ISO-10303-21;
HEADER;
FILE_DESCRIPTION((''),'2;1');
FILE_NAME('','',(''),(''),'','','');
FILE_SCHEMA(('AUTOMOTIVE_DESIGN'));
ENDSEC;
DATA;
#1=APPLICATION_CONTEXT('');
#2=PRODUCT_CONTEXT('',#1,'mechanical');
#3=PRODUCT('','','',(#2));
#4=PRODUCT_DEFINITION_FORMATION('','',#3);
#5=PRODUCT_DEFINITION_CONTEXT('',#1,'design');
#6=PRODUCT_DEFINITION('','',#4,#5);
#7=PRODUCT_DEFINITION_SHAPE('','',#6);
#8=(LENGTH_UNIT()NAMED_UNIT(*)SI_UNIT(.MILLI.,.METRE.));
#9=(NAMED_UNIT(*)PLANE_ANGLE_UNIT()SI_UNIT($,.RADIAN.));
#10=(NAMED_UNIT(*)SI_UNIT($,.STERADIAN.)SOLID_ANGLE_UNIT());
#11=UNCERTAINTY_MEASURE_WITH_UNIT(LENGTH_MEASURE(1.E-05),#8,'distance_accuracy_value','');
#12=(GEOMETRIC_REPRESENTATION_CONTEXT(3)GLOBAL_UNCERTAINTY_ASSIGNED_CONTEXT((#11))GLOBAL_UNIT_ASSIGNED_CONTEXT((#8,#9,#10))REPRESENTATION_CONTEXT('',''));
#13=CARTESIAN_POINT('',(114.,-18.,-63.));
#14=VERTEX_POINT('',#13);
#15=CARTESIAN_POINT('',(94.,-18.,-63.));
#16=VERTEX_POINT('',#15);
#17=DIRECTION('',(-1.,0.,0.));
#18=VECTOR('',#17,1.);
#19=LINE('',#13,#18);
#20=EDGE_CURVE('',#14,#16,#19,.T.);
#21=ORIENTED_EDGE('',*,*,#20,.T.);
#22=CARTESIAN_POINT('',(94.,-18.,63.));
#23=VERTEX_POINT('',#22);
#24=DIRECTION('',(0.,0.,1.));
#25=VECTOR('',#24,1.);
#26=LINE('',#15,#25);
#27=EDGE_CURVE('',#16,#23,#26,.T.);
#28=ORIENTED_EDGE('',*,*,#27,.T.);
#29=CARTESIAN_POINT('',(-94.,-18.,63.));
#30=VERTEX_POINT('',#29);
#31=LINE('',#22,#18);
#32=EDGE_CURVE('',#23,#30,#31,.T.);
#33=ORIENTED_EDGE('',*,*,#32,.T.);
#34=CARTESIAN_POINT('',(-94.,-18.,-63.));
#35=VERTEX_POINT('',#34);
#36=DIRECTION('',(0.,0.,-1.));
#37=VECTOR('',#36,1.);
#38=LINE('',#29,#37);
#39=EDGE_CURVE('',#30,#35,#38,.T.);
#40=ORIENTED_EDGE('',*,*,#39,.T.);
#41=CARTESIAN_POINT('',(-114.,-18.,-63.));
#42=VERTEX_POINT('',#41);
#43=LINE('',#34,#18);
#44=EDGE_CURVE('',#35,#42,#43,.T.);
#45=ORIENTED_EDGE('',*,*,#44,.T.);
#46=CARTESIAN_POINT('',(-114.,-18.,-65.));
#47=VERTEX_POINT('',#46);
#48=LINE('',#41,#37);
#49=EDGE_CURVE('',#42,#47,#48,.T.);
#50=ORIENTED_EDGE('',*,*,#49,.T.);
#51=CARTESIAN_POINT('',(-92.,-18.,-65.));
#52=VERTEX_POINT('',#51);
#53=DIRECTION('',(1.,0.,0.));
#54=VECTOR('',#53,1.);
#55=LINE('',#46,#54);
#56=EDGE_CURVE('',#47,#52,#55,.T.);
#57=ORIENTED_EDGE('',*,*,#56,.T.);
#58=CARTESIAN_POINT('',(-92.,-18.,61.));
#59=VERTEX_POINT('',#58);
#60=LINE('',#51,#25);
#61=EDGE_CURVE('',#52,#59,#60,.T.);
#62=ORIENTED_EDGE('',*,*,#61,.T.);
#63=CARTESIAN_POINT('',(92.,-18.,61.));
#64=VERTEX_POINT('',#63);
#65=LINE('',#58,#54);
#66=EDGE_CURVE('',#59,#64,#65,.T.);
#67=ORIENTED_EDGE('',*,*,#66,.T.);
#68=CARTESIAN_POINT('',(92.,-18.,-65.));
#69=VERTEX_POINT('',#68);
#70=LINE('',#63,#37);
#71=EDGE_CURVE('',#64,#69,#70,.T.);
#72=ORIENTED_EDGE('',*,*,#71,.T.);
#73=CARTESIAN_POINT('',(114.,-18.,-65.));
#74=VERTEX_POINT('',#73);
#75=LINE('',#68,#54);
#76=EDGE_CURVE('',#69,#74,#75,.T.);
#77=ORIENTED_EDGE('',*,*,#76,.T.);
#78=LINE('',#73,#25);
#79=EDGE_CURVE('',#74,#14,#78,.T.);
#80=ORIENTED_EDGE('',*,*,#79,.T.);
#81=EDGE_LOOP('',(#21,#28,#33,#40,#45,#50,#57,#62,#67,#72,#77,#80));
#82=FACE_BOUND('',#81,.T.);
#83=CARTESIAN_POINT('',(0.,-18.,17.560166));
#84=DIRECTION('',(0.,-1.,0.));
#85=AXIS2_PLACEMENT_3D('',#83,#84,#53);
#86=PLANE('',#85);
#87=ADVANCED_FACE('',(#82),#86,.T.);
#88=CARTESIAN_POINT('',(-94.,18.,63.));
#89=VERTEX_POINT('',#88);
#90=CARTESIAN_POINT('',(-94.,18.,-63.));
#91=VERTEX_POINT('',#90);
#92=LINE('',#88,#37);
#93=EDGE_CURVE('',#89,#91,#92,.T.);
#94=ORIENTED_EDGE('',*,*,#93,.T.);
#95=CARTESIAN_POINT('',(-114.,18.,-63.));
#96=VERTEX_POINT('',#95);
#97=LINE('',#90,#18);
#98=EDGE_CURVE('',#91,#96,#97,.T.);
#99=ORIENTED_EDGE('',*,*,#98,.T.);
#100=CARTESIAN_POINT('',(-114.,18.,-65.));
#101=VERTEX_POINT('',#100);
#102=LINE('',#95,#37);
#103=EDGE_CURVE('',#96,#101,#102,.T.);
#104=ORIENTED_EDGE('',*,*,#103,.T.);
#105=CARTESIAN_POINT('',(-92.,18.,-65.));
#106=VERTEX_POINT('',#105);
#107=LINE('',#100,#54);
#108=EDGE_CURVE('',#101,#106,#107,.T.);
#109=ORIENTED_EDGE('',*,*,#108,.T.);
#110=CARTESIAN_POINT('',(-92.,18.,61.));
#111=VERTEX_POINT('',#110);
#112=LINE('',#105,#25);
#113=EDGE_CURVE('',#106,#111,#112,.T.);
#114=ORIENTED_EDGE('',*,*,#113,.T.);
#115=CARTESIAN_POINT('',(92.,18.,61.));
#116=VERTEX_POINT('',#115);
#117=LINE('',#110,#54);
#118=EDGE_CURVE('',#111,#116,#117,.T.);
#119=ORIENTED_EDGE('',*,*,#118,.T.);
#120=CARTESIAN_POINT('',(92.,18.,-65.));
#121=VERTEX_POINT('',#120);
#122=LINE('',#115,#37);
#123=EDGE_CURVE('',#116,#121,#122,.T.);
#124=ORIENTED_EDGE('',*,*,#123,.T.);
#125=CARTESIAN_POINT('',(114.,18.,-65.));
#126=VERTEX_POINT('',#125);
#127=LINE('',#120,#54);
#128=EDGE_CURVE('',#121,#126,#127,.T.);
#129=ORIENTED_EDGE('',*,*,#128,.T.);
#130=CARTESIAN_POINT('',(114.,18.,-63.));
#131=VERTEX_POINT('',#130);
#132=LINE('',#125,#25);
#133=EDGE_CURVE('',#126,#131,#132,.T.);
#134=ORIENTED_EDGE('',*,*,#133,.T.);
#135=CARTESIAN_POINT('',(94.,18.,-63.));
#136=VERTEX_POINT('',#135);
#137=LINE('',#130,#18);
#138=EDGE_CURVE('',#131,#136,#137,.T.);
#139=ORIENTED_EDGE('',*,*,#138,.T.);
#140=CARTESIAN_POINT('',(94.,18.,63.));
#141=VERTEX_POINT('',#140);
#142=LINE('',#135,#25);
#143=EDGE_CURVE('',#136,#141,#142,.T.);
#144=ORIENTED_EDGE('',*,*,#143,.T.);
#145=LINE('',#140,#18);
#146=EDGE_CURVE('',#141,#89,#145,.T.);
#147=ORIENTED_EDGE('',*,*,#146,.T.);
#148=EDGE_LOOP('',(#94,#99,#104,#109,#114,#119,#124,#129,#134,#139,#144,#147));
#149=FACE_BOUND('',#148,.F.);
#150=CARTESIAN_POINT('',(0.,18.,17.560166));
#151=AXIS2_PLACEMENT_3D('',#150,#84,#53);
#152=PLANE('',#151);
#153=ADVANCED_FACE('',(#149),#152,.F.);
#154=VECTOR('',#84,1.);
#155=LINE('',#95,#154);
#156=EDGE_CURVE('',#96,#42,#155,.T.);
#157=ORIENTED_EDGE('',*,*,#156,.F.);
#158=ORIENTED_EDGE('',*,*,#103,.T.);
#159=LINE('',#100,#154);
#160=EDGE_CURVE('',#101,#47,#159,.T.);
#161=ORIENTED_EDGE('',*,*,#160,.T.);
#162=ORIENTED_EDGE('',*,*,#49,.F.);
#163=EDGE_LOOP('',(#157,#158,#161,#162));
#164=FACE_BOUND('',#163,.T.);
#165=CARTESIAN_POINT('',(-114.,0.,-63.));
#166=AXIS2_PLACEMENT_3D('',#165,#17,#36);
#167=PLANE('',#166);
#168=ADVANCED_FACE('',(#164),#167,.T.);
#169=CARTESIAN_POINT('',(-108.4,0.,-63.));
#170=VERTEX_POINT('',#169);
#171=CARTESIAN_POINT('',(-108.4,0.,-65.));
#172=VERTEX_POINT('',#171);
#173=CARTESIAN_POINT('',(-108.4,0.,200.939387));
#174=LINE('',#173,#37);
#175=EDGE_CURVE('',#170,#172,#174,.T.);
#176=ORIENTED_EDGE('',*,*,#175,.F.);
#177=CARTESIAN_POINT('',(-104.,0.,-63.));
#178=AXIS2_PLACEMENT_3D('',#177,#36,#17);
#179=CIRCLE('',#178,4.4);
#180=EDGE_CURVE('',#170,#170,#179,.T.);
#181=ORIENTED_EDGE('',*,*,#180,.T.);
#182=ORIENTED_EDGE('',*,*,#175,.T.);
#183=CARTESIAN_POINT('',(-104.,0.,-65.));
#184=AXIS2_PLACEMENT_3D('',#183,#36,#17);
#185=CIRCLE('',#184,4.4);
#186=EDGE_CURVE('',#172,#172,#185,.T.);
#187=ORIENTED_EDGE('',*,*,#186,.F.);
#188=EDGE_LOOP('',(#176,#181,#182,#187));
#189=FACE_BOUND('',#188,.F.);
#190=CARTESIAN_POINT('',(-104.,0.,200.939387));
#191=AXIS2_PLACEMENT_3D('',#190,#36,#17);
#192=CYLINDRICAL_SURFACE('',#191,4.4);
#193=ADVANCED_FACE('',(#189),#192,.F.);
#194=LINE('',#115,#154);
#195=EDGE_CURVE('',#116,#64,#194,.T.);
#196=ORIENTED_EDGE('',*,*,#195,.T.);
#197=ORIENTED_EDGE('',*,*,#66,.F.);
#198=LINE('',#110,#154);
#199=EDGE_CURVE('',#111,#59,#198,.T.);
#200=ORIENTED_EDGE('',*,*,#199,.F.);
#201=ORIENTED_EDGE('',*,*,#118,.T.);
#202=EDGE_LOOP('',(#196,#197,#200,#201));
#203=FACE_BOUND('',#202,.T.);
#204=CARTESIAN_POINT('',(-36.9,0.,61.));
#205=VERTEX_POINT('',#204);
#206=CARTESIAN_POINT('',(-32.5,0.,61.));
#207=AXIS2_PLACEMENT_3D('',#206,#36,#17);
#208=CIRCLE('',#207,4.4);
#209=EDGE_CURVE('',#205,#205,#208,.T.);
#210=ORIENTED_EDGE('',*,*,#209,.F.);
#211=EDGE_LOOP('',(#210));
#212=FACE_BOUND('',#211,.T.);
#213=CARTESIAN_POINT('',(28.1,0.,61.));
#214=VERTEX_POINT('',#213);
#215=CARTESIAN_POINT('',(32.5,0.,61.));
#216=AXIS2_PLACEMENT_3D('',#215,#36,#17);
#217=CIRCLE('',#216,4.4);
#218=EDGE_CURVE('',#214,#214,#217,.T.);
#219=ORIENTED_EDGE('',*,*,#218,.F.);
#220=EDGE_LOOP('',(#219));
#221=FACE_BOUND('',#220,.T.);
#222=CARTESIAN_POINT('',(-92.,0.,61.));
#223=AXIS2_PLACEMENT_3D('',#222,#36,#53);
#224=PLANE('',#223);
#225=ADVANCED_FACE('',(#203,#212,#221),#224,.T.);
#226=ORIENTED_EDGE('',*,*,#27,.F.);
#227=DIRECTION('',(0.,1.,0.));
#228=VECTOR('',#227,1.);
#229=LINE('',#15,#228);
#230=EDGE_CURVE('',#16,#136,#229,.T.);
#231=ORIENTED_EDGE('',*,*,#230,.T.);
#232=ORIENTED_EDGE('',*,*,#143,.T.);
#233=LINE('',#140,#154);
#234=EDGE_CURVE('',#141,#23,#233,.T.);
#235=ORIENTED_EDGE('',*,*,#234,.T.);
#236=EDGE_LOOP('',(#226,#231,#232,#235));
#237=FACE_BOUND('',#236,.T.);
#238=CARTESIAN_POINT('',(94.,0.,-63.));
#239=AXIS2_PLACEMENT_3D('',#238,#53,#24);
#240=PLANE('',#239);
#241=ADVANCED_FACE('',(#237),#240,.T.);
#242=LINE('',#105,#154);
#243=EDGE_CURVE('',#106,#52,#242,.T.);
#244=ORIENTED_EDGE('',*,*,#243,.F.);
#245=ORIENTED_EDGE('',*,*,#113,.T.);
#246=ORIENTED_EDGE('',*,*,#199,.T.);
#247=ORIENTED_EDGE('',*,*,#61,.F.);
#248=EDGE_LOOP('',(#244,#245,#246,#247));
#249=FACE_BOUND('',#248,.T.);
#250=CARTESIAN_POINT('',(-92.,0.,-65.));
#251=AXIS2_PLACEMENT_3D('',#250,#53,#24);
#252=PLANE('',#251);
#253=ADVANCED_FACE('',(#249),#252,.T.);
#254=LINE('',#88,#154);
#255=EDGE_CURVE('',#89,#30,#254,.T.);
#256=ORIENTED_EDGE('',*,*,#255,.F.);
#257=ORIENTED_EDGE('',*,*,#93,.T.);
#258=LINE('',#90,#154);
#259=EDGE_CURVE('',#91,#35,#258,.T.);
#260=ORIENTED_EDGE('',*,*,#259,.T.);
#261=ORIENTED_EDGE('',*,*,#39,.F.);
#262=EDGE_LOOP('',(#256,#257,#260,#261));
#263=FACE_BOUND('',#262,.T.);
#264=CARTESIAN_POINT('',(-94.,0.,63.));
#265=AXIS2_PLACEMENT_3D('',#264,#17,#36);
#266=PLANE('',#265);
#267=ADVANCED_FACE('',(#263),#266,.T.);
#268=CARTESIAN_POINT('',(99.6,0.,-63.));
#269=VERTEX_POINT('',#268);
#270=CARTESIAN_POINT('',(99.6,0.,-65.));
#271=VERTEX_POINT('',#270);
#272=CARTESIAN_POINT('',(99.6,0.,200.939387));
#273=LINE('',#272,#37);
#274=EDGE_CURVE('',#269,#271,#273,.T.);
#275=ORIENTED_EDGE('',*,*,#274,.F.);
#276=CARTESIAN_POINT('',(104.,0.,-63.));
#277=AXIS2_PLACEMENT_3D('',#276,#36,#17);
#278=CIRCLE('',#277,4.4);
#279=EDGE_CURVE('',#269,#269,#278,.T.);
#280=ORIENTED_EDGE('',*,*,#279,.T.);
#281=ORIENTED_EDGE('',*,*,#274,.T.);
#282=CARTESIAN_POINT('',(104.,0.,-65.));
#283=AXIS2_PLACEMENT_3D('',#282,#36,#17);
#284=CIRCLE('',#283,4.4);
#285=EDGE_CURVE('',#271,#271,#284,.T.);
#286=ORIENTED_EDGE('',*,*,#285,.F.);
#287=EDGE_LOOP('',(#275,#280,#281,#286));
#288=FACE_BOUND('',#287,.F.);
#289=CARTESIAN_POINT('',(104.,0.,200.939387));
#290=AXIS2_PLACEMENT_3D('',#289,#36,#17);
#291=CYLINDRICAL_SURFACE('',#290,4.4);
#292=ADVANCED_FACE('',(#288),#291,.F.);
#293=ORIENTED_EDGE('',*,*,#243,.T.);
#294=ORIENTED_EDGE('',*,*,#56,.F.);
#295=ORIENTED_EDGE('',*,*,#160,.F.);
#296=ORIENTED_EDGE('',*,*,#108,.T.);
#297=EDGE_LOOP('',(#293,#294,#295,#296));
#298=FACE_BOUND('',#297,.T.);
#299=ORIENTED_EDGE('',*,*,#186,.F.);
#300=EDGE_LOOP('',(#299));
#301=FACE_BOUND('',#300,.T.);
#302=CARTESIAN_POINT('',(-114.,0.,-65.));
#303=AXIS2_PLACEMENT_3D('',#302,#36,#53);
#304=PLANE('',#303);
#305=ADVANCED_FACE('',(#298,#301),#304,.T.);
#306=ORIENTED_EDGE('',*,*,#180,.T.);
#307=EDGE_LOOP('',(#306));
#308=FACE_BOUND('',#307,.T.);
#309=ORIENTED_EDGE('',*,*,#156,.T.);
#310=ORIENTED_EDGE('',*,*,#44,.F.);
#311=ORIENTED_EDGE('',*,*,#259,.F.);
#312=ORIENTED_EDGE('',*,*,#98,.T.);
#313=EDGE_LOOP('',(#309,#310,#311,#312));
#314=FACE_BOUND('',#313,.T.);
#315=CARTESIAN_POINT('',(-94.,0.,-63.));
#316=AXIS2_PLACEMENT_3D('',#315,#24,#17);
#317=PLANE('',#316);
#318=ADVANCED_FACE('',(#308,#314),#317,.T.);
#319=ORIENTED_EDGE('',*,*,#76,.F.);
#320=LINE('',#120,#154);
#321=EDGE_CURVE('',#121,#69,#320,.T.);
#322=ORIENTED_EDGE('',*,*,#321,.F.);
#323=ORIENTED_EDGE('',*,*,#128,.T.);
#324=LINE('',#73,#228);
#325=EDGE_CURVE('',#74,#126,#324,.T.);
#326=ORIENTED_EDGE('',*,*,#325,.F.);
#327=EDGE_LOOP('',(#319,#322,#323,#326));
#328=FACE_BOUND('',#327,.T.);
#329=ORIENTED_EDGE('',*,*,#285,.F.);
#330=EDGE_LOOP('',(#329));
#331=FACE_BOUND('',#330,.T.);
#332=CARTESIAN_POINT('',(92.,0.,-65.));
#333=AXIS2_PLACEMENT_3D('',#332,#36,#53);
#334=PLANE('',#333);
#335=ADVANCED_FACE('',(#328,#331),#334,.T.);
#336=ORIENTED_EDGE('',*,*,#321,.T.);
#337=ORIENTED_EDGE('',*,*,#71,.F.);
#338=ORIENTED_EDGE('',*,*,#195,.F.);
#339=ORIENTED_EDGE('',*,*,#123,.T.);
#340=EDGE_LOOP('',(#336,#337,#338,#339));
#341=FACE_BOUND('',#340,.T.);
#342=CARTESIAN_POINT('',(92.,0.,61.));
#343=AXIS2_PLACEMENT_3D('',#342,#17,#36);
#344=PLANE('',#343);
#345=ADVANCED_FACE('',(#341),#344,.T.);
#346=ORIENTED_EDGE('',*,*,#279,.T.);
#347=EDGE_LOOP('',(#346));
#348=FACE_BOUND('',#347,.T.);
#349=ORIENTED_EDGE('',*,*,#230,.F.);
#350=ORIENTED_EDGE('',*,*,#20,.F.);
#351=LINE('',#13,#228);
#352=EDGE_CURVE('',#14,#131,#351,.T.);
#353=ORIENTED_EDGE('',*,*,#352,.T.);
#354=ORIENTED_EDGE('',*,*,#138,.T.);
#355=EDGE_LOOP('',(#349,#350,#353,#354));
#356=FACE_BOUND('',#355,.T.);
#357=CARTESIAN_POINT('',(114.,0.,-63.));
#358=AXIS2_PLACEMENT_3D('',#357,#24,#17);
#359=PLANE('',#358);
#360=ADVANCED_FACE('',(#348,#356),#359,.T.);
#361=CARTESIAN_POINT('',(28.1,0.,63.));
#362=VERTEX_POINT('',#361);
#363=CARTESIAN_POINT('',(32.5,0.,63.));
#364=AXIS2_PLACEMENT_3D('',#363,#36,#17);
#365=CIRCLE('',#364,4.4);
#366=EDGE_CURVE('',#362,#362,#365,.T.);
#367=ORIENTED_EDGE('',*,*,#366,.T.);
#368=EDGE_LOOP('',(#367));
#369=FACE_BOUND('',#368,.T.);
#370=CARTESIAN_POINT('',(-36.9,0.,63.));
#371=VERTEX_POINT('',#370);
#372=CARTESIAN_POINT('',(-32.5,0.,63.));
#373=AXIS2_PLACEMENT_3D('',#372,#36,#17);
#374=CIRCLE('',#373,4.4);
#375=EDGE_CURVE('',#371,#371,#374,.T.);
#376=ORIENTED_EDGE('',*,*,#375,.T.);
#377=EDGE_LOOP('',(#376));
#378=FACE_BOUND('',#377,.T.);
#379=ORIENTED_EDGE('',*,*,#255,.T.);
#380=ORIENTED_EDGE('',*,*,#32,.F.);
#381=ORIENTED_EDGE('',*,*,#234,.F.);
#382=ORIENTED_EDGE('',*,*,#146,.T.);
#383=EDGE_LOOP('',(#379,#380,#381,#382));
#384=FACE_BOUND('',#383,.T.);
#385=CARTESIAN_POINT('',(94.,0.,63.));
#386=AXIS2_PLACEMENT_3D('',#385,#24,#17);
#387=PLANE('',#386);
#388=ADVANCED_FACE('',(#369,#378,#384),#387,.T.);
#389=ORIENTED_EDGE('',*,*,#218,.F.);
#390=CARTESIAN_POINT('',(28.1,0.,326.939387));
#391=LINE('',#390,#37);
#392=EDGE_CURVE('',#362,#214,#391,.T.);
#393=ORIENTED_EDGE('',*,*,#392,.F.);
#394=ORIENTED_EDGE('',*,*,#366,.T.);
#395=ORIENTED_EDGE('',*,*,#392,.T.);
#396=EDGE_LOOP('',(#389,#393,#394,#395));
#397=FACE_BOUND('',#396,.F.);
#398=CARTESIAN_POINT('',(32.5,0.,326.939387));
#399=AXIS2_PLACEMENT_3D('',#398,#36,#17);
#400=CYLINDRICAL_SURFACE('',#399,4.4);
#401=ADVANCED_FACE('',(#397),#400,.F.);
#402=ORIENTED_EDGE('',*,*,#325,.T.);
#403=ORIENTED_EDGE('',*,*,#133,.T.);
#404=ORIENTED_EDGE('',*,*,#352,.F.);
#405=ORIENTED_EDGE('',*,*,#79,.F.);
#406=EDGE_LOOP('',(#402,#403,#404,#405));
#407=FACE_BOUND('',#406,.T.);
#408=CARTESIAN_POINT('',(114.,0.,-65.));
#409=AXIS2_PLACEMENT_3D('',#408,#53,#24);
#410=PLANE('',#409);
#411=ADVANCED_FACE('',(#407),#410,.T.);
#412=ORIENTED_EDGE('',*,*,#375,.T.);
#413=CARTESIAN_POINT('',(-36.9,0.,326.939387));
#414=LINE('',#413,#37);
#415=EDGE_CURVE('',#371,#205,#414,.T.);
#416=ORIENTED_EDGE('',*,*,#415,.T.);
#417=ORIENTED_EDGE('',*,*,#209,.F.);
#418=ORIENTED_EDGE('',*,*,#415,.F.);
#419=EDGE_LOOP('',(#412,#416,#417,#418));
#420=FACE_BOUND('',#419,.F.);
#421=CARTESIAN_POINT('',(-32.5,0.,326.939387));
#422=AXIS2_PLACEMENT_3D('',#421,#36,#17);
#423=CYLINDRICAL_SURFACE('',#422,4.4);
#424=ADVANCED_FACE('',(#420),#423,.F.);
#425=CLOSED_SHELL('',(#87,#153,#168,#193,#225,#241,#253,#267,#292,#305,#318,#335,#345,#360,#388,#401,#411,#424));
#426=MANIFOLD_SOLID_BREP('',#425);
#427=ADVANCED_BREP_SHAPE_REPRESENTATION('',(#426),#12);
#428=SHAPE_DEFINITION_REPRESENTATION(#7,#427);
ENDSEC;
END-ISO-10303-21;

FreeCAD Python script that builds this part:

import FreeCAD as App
import Part
import Sketcher

V = App.Vector

doc = App.newDocument("Part")
body = doc.addObject("PartDesign::Body", "Body")

# Sketch on XZ plane
sketch1 = body.newObject("Sketcher::SketchObject", "Sketch")
sketch1.AttachmentSupport = (doc.getObject("XZ_Plane"), [""])
sketch1.MapMode = "FlatFace"
sketch1.addGeometry([
    Part.LineSegment(V(94, -63, 0), V(94, 63, 0)),  # 0
    Part.LineSegment(V(94, 63, 0), V(-94, 63, 0)),  # 1
    Part.LineSegment(V(-94, 63, 0), V(-94, -63, 0)),  # 2
    Part.LineSegment(V(-94, -63, 0), V(-114, -63, 0)),  # 3
    Part.LineSegment(V(-114, -63, 0), V(-114, -65, 0)),  # 4
    Part.LineSegment(V(-114, -65, 0), V(-92, -65, 0)),  # 5
    Part.LineSegment(V(-92, -65, 0), V(-92, 61, 0)),  # 6
    Part.LineSegment(V(-92, 61, 0), V(92, 61, 0)),  # 7
    Part.LineSegment(V(92, 61, 0), V(92, -65, 0)),  # 8
    Part.LineSegment(V(92, -65, 0), V(114, -65, 0)),  # 9
    Part.LineSegment(V(114, -65, 0), V(114, -63, 0)),  # 10
    Part.LineSegment(V(114, -63, 0), V(94, -63, 0)),  # 11
], False)
sketch1.addConstraint([
    Sketcher.Constraint("Coincident", 0, 2, 1, 1),
    Sketcher.Constraint("Coincident", 1, 2, 2, 1),
    Sketcher.Constraint("Coincident", 2, 2, 3, 1),
    Sketcher.Constraint("Coincident", 3, 2, 4, 1),
    Sketcher.Constraint("Coincident", 4, 2, 5, 1),
    Sketcher.Constraint("Coincident", 5, 2, 6, 1),
    Sketcher.Constraint("Coincident", 6, 2, 7, 1),
    Sketcher.Constraint("Coincident", 7, 2, 8, 1),
    Sketcher.Constraint("Coincident", 8, 2, 9, 1),
    Sketcher.Constraint("Coincident", 9, 2, 10, 1),
    Sketcher.Constraint("Coincident", 10, 2, 11, 1),
    Sketcher.Constraint("Coincident", 11, 2, 0, 1),
    Sketcher.Constraint("Vertical", 0),
    Sketcher.Constraint("Horizontal", 1),
    Sketcher.Constraint("Vertical", 2),
    Sketcher.Constraint("Horizontal", 3),
    Sketcher.Constraint("Vertical", 4),
    Sketcher.Constraint("Horizontal", 5),
    Sketcher.Constraint("Vertical", 6),
    Sketcher.Constraint("Horizontal", 7),
    Sketcher.Constraint("Vertical", 8),
    Sketcher.Constraint("Horizontal", 9),
    Sketcher.Constraint("Vertical", 10),
    Sketcher.Constraint("Horizontal", 11),
    Sketcher.Constraint("Symmetric", 0, 2, 2, 2, -1, 1),
    Sketcher.Constraint("Symmetric", 5, 2, 8, 2, -2),
    Sketcher.Constraint("Symmetric", 3, 2, 10, 2, -2),
    Sketcher.Constraint("Equal", 2, 6),
    Sketcher.Constraint("DistanceX", 1, 2, 1, 1, 188.0),
    Sketcher.Constraint("DistanceX", 3, 2, 3, 1, 20.0),
    Sketcher.Constraint("DistanceX", 5, 1, 5, 2, 22.0),
    Sketcher.Constraint("DistanceY", 0, 1, 0, 2, 126.0),
    Sketcher.Constraint("DistanceY", 4, 2, 4, 1, 2.0),
])
pad1 = body.newObject("PartDesign::Pad", "Pad")
pad1.Profile = sketch1
pad1.Length = 36
pad1.Midplane = True

# Sketch on XY plane
sketch2 = body.newObject("Sketcher::SketchObject", "Sketch001")
sketch2.AttachmentSupport = (doc.getObject("XY_Plane"), [""])
sketch2.MapMode = "FlatFace"
sketch2.AttachmentOffset = App.Placement(V(0, 0, 63), App.Rotation())
sketch2.addGeometry([
    Part.Circle(V(-32.5, 0, 0), V(0, 0, 1), 4.4),
    Part.Circle(V(32.5, 0, 0), V(0, 0, 1), 4.4),
], False)
sketch2.addConstraint([
    Sketcher.Constraint("Equal", 0, 1),
    Sketcher.Constraint("Symmetric", 0, 3, 1, 3, -1, 1),
    Sketcher.Constraint("PointOnObject", 0, 3, -1),
    Sketcher.Constraint("Diameter", 0, 8.8),
    Sketcher.Constraint("DistanceX", 0, 3, 1, 3, 65.0),
])
doc.recompute()
hole = body.newObject("PartDesign::Hole", "Hole")
hole.Profile = sketch2
hole.ThreadType = "None"
hole.Diameter = 8.8
hole.DepthType = "ThroughAll"

# Sketch on XY plane
sketch3 = body.newObject("Sketcher::SketchObject", "Sketch002")
sketch3.AttachmentSupport = (doc.getObject("XY_Plane"), [""])
sketch3.MapMode = "FlatFace"
sketch3.AttachmentOffset = App.Placement(V(0, 0, -63), App.Rotation())
sketch3.addGeometry(Part.Circle(V(104, 0, 0), V(0, 0, 1), 4.4), False)
sketch3.addConstraint([
    Sketcher.Constraint("PointOnObject", 0, 3, -1),
    Sketcher.Constraint("Diameter", 0, 8.8),
    Sketcher.Constraint("DistanceX", -1, 1, 0, 3, 104.0),
])
doc.recompute()
hole2 = body.newObject("PartDesign::Hole", "Hole001")
hole2.Profile = sketch3
hole2.ThreadType = "None"
hole2.Diameter = 8.8
hole2.DepthType = "ThroughAll"

# Sketch on XY plane
sketch4 = body.newObject("Sketcher::SketchObject", "Sketch003")
sketch4.AttachmentSupport = (doc.getObject("XY_Plane"), [""])
sketch4.MapMode = "FlatFace"
sketch4.AttachmentOffset = App.Placement(V(0, 0, -63), App.Rotation())
sketch4.addGeometry(Part.Circle(V(-104, 0, 0), V(0, 0, 1), 4.4), False)
sketch4.addConstraint([
    Sketcher.Constraint("PointOnObject", 0, 3, -1),
    Sketcher.Constraint("Diameter", 0, 8.8),
    Sketcher.Constraint("DistanceX", 0, 3, -1, 1, 104.0),
])
doc.recompute()
hole3 = body.newObject("PartDesign::Hole", "Hole002")
hole3.Profile = sketch4
hole3.ThreadType = "None"
hole3.Diameter = 8.8
hole3.DepthType = "ThroughAll"

doc.recompute()
